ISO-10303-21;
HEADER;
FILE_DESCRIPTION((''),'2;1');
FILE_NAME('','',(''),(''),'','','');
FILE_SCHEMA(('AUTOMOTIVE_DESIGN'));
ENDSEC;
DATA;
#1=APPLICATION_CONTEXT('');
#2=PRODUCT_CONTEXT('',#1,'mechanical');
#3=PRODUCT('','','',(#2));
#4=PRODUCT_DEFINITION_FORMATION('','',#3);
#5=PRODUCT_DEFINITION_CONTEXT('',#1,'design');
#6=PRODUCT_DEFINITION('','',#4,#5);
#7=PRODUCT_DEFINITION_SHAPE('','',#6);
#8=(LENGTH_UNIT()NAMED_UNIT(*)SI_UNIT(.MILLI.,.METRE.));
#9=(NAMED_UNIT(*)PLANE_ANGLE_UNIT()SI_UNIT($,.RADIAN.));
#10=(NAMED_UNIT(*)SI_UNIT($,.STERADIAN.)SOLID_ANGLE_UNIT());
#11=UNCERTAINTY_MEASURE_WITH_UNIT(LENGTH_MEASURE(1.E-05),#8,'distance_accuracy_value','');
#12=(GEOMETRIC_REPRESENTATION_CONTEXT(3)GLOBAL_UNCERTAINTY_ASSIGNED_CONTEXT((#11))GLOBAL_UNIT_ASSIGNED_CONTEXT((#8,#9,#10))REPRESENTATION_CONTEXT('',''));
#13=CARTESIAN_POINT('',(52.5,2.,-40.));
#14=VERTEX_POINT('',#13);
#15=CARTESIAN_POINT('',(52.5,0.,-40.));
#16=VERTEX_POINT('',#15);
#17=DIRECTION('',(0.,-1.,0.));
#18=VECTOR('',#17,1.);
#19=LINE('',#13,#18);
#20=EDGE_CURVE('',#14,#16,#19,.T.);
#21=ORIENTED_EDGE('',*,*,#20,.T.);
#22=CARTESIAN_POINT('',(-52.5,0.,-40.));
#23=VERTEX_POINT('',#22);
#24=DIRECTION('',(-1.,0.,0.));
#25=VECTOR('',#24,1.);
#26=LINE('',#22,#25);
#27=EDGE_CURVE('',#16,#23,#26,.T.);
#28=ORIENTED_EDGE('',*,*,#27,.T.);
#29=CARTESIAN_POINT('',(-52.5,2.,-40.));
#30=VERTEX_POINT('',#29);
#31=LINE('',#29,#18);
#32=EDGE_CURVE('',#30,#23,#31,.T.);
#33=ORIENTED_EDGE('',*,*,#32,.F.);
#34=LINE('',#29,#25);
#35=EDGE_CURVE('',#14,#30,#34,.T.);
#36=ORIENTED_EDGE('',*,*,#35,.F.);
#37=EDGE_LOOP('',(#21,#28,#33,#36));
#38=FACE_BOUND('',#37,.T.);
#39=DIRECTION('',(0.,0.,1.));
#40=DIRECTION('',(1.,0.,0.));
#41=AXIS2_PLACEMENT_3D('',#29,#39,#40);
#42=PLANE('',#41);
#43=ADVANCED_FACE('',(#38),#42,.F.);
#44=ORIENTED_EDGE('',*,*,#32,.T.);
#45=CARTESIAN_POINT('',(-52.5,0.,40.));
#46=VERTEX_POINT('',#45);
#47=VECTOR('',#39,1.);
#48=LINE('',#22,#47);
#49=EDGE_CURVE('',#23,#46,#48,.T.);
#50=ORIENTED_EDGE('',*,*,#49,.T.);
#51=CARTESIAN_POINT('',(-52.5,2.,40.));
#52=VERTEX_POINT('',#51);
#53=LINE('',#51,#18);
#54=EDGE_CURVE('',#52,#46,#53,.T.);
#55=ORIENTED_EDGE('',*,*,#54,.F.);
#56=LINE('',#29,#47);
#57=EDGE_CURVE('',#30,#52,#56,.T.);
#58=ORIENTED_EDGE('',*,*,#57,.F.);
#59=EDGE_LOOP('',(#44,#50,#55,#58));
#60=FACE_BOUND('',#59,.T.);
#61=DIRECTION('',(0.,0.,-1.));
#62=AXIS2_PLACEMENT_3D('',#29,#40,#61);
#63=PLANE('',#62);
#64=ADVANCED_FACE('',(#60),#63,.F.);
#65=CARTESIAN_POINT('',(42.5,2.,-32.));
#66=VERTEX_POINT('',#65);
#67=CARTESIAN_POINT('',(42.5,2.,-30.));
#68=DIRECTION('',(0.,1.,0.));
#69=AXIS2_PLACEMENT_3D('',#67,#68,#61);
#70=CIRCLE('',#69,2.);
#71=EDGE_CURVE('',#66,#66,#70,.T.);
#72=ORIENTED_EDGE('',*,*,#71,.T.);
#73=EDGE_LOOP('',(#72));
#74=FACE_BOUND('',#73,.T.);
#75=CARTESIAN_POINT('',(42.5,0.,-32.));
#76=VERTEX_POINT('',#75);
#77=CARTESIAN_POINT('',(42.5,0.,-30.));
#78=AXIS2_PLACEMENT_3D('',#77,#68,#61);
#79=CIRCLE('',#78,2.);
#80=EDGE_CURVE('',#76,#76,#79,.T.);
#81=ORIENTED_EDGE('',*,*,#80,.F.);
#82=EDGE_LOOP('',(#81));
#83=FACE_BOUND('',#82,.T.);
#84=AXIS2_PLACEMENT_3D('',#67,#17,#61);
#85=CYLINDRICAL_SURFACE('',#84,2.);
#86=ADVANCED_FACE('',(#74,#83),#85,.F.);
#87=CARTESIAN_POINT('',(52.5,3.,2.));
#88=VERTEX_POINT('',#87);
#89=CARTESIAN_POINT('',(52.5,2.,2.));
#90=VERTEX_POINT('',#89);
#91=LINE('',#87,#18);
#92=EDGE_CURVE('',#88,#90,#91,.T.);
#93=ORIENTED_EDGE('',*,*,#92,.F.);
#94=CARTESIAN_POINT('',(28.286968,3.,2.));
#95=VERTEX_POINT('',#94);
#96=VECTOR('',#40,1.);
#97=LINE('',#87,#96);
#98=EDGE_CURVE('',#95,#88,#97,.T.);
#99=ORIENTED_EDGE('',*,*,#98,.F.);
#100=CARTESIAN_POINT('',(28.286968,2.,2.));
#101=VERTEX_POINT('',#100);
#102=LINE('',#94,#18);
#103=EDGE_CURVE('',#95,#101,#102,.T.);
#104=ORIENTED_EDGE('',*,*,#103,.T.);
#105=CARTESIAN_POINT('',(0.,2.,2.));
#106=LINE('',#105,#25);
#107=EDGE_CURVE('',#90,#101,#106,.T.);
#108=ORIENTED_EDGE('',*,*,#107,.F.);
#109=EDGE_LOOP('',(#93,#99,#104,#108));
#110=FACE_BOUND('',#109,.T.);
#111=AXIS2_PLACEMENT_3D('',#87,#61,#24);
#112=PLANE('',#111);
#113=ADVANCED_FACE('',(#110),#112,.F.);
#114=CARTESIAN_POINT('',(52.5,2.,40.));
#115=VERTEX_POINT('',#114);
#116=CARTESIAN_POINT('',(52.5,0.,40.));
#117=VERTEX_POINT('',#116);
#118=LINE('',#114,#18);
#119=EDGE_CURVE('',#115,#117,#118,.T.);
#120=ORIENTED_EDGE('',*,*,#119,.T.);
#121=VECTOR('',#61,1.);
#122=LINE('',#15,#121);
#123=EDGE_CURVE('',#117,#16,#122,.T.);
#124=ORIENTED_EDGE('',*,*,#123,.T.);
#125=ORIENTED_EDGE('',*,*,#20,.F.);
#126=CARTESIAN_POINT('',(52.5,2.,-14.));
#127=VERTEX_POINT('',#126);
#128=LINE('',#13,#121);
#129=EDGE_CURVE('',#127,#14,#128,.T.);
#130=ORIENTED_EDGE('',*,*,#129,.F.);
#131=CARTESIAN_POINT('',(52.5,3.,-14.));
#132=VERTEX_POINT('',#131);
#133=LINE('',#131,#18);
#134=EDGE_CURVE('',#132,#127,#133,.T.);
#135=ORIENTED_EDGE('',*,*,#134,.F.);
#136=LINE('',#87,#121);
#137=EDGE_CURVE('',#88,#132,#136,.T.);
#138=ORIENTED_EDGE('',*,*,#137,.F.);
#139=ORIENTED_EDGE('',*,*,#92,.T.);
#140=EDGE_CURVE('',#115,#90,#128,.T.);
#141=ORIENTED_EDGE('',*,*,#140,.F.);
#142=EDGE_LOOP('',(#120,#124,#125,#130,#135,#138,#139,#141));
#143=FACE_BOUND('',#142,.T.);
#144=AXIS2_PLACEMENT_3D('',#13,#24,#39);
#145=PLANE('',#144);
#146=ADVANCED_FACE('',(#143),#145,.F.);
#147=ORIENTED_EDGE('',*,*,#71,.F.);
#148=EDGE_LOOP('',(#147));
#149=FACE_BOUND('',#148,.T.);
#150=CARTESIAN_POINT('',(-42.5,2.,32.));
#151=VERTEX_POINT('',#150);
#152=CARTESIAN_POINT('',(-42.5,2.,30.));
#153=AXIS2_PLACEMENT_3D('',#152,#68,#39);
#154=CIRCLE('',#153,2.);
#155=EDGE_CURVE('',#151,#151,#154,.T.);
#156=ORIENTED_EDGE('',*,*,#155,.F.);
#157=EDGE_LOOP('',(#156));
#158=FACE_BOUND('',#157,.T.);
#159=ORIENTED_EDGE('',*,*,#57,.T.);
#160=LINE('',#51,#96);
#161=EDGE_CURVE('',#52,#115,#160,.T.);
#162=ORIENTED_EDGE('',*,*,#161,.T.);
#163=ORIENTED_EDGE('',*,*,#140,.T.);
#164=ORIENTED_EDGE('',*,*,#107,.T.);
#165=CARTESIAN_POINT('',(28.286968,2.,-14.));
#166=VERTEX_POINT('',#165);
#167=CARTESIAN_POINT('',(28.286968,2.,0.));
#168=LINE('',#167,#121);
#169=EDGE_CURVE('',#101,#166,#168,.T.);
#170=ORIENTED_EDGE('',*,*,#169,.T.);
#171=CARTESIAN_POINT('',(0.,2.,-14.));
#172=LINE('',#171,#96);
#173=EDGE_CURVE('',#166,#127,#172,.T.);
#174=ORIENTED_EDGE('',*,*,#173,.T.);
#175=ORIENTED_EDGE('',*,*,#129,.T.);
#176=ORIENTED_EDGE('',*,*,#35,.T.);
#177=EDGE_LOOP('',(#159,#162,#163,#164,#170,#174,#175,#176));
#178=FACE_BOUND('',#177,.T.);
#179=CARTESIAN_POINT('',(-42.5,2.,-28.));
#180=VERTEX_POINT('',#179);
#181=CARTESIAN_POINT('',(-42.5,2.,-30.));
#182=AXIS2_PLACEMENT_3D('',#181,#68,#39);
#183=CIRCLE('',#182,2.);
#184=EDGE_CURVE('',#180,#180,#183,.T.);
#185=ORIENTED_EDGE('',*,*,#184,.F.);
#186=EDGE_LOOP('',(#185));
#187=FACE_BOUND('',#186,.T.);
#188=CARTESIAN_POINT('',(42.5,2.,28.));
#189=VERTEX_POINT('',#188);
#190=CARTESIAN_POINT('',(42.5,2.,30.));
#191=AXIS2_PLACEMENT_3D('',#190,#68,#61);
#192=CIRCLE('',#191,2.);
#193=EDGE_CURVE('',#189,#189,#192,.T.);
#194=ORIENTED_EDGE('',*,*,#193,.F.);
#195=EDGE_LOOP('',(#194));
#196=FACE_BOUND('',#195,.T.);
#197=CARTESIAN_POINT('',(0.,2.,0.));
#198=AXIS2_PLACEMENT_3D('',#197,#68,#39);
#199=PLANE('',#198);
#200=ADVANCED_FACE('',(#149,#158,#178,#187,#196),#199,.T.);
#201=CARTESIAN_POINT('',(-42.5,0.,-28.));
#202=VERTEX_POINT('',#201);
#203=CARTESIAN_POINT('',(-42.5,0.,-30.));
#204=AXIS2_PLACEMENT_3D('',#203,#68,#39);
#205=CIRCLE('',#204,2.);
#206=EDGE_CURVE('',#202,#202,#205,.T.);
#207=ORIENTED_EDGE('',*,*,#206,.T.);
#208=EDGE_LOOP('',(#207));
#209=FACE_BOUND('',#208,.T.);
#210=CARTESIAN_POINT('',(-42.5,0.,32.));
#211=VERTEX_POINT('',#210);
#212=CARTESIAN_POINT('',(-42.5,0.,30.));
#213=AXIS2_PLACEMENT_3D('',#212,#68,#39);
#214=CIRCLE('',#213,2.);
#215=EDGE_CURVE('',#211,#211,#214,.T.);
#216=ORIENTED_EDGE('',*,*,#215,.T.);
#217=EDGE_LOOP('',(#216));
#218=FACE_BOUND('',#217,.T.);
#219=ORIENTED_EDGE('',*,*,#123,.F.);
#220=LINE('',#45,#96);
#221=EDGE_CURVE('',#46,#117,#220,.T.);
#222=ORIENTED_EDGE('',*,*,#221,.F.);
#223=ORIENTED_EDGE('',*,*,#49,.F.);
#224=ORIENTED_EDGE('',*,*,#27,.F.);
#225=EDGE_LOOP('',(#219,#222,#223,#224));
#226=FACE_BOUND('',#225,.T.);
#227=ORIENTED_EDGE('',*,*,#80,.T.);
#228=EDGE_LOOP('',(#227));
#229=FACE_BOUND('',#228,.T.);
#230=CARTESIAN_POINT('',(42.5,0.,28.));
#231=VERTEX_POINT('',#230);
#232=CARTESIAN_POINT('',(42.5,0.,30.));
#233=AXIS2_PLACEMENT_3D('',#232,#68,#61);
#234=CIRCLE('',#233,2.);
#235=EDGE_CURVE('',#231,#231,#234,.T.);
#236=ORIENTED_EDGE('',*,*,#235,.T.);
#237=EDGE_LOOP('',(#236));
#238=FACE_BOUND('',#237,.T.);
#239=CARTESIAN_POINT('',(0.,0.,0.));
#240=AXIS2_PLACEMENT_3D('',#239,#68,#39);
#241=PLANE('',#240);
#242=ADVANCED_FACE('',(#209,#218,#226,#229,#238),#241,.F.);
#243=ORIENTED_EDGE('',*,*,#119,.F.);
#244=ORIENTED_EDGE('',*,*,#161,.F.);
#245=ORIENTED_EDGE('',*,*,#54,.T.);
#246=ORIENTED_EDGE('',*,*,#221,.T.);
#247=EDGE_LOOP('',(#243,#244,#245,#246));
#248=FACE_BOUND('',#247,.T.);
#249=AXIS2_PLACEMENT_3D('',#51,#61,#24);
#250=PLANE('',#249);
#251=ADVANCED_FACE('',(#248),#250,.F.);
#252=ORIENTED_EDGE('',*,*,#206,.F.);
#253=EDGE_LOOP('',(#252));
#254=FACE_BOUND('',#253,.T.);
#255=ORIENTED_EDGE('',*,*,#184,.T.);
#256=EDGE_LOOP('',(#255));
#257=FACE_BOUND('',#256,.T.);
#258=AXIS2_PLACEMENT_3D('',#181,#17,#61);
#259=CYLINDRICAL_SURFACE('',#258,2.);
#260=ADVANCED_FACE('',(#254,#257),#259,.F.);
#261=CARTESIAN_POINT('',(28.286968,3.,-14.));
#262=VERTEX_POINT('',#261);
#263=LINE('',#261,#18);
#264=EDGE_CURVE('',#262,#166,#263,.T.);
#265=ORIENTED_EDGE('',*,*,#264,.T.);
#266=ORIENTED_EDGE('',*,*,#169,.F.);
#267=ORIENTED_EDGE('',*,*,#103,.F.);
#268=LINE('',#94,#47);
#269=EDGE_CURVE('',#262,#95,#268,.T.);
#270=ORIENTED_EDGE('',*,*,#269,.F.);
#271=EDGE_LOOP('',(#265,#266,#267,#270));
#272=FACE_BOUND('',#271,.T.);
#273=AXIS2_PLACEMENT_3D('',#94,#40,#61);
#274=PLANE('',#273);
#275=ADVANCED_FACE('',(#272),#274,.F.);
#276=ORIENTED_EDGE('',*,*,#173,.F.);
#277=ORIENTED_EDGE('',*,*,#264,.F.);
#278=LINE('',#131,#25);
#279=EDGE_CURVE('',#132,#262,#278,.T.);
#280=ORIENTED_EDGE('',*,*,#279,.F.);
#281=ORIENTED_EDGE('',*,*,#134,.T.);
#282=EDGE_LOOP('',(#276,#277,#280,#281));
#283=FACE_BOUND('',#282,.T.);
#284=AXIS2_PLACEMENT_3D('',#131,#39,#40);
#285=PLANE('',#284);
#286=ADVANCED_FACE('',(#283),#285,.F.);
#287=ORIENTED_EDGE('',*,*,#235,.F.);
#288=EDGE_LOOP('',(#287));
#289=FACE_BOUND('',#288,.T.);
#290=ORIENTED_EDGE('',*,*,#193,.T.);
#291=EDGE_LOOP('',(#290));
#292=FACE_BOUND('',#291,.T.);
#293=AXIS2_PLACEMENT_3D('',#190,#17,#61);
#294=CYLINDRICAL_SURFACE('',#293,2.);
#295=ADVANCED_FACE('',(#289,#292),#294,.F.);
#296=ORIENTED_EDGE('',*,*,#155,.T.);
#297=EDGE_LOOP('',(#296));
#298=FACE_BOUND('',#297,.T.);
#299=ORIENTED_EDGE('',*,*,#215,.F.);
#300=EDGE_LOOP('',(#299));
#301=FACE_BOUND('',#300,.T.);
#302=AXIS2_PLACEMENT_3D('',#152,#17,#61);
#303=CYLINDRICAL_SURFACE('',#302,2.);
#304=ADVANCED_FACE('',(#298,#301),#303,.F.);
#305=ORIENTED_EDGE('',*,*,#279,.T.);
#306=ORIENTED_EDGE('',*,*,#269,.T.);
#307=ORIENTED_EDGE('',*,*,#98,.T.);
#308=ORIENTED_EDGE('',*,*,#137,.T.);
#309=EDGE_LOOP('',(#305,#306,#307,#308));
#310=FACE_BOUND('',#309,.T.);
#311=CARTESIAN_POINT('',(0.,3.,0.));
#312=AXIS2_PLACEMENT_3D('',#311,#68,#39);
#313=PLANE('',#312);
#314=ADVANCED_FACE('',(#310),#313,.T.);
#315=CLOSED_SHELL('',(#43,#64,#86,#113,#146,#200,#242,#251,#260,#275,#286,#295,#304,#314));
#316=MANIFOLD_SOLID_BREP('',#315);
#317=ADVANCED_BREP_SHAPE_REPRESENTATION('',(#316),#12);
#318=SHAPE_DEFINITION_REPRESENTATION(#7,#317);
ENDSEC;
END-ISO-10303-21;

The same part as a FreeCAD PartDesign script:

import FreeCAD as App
import Part
import Sketcher

V = App.Vector
Q = App.Units.Quantity

doc = App.newDocument("Part")
body = doc.addObject("PartDesign::Body", "Body")

# Sketch on XZ plane
sketch1 = body.newObject("Sketcher::SketchObject", "Sketch")
sketch1.AttachmentSupport = (doc.getObject("XZ_Plane"), [""])
sketch1.MapMode = "FlatFace"
sketch1.addGeometry([
    Part.LineSegment(V(-52.5, -40, 0), V(-52.5, 40, 0)),  # 0
    Part.LineSegment(V(-52.5, 40, 0), V(52.5, 40, 0)),  # 1
    Part.LineSegment(V(52.5, 40, 0), V(52.5, -40, 0)),  # 2
    Part.LineSegment(V(52.5, -40, 0), V(-52.5, -40, 0)),  # 3
    Part.Circle(V(-42.5, 30, 0), V(0, 0, 1), 2),  # 4
    Part.Circle(V(42.5, 30, 0), V(0, 0, 1), 2),  # 5
    Part.Circle(V(-42.5, -30, 0), V(0, 0, 1), 2),  # 6
    Part.Circle(V(42.5, -30, 0), V(0, 0, 1), 2),  # 7
], False)
sketch1.addConstraint([
    Sketcher.Constraint("Coincident", 0, 2, 1, 1),
    Sketcher.Constraint("Coincident", 1, 2, 2, 1),
    Sketcher.Constraint("Coincident", 2, 2, 3, 1),
    Sketcher.Constraint("Coincident", 3, 2, 0, 1),
    Sketcher.Constraint("Vertical", 0),
    Sketcher.Constraint("Horizontal", 1),
    Sketcher.Constraint("Vertical", 2),
    Sketcher.Constraint("Horizontal", 3),
    Sketcher.Constraint("Equal", 4, 5),
    Sketcher.Constraint("Equal", 5, 6),
    Sketcher.Constraint("Equal", 6, 7),
    Sketcher.Constraint("Symmetric", 5, 3, 6, 3, -1, 1),
    Sketcher.Constraint("Symmetric", 4, 3, 7, 3, -1, 1),
    Sketcher.Constraint("Symmetric", 0, 2, 2, 2, -1, 1),
    Sketcher.Constraint("Symmetric", 4, 3, 5, 3, -2),
    Sketcher.Constraint("Diameter", 4, Q("4 mm")),
    Sketcher.Constraint("DistanceX", 1, 1, 1, 2, Q("105 mm")),
    Sketcher.Constraint("DistanceY", 0, 1, 0, 2, Q("80 mm")),
    Sketcher.Constraint("DistanceY", -1, 1, 4, 3, Q("30 mm")),
    Sketcher.Constraint("DistanceX", 4, 3, 5, 3, Q("85 mm")),
])
pad1 = body.newObject("PartDesign::Pad", "Pad")
pad1.Profile = sketch1
pad1.Length = 2
pad1.Reversed = True

# Sketch on XZ plane
sketch2 = body.newObject("Sketcher::SketchObject", "Sketch001")
sketch2.AttachmentSupport = (doc.getObject("XZ_Plane"), [""])
sketch2.MapMode = "FlatFace"
sketch2.addGeometry([
    Part.LineSegment(V(28, -14, 0), V(28, 2, 0)),
    Part.LineSegment(V(28, 2, 0), V(52, 2, 0)),
    Part.LineSegment(V(52, 2, 0), V(52, -14, 0)),
    Part.LineSegment(V(52, -14, 0), V(28, -14, 0)),
], False)
sketch2.addConstraint([
    Sketcher.Constraint("Coincident", 0, 2, 1, 1),
    Sketcher.Constraint("Coincident", 1, 2, 2, 1),
    Sketcher.Constraint("Coincident", 2, 2, 3, 1),
    Sketcher.Constraint("Coincident", 3, 2, 0, 1),
    Sketcher.Constraint("Vertical", 0),
    Sketcher.Constraint("Horizontal", 1),
    Sketcher.Constraint("Vertical", 2),
    Sketcher.Constraint("Horizontal", 3),
    Sketcher.Constraint("DistanceY", 0, 1, 0, 2, Q("16 mm")),
    Sketcher.Constraint("DistanceY", -1, 1, 0, 2, Q("2 mm")),
    Sketcher.Constraint("DistanceX", -1, 1, 1, 2, Q("52.5 mm")),
    Sketcher.Constraint("DistanceX", 1, 1, 1, 2, Q("24.213032 mm")),
])
pad2 = body.newObject("PartDesign::Pad", "Pad001")
pad2.Profile = sketch2
pad2.Length = 3
pad2.Reversed = True

doc.recompute()
